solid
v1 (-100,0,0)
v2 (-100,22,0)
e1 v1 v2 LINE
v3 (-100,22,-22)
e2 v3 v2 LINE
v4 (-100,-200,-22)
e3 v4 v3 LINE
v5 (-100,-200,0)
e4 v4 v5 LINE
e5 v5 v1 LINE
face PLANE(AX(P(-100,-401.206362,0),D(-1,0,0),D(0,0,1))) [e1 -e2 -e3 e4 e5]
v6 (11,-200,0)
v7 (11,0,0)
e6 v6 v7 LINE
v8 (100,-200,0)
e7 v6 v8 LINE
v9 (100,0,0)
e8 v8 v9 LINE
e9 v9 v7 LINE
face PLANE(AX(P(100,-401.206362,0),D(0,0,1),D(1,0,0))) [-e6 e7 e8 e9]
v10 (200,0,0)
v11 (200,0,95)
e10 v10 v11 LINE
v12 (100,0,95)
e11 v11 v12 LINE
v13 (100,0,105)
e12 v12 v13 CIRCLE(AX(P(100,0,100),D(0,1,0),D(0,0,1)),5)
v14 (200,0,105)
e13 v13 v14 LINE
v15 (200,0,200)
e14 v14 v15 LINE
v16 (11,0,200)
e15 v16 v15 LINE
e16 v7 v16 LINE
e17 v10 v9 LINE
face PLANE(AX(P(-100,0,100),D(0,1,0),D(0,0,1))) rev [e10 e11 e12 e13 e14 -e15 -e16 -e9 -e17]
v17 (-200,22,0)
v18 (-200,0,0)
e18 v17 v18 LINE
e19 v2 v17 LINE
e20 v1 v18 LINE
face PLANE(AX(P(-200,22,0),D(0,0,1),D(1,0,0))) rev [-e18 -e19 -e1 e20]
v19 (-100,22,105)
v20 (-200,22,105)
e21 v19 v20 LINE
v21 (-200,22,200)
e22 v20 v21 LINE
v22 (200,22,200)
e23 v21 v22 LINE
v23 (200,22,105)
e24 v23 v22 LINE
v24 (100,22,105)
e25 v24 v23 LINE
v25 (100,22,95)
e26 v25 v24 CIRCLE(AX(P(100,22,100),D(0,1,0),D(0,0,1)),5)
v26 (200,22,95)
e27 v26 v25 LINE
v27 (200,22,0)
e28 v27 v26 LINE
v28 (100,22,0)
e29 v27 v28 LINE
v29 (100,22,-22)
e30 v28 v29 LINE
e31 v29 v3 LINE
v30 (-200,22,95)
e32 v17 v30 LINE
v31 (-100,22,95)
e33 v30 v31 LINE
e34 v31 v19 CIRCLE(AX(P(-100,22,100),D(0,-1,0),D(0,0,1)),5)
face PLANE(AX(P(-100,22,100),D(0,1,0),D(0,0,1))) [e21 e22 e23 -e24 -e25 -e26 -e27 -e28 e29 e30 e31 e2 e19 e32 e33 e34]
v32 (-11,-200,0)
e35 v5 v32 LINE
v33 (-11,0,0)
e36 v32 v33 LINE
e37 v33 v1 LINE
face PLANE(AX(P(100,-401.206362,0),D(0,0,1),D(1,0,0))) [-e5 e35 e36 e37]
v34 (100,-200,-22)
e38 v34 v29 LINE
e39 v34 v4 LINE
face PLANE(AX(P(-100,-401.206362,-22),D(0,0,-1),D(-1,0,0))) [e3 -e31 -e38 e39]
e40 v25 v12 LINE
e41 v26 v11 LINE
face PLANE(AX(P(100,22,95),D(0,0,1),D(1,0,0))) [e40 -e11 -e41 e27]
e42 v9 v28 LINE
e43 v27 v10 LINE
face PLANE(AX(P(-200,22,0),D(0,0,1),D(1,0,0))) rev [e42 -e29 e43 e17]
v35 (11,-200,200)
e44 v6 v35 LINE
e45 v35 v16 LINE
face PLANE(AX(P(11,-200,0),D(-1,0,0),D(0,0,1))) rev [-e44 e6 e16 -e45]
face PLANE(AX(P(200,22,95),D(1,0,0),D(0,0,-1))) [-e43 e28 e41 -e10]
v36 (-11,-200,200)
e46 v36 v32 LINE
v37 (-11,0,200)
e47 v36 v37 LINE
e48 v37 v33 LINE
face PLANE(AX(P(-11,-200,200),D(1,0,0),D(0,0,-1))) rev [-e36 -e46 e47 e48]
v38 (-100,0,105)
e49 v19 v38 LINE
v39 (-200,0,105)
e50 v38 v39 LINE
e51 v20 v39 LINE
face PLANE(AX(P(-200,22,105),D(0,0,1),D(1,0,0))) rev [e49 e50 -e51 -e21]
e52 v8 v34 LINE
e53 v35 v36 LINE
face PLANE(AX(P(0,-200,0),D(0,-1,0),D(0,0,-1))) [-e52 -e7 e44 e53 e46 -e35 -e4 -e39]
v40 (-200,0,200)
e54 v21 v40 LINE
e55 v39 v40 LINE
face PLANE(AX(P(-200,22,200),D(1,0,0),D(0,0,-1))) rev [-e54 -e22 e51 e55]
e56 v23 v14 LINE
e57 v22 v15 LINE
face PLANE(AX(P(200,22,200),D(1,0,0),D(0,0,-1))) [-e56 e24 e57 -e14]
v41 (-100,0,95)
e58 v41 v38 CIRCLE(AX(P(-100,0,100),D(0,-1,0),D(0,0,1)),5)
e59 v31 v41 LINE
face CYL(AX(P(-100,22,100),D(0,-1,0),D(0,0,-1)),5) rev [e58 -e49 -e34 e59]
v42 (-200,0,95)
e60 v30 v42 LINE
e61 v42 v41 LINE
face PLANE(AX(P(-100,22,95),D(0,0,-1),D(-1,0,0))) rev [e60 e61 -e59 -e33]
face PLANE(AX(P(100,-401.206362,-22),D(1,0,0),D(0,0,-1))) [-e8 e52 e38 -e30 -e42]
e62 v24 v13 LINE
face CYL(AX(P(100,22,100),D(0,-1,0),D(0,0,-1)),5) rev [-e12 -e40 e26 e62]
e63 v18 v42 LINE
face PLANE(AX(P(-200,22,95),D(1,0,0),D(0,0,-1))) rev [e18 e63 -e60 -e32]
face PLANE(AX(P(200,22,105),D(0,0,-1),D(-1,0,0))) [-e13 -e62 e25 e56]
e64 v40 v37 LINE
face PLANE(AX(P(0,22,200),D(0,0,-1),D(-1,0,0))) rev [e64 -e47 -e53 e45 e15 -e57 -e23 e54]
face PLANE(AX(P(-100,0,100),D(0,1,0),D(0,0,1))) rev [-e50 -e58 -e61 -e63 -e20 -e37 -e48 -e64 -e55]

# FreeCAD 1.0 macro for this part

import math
import FreeCAD as App
import Part
import Sketcher
from FreeCAD import Vector

doc = App.newDocument("Part")
params = doc.addObject("Spreadsheet::Sheet", "Params")
for row, (alias, value) in enumerate([
    ("sketch1_radius", "5 mm"),
    ("sketch1_width", "200 mm"),
    ("sketch1_width2", "100 mm"),
    ("pad1_length", "22 mm"),
    ("sketch2_width", "22 mm"),
    ("sketch2_height", "200 mm"),
    ("pad2_length", "200 mm"),
    ("sketch3_width", "200 mm"),
    ("sketch3_height", "22 mm"),
    ("pad3_length", "222 mm"),
], start=1):
    params.set(f"A{row}", alias)
    params.set(f"B{row}", "=" + value)
    params.setAlias(f"B{row}", alias)

body = doc.addObject("PartDesign::Body", "Body")

sketch1 = body.newObject("Sketcher::SketchObject", "Sketch")
sketch1.AttachmentSupport = (doc.getObject("XZ_Plane"), [""])
sketch1.MapMode = "FlatFace"
sketch1.addGeometry([
    Part.LineSegment(Vector(0, 200, 0), Vector(0, 0, 0)),
    Part.LineSegment(Vector(0, 0, 0), Vector(-200, 0, 0)),
    Part.LineSegment(Vector(-200, 0, 0), Vector(-200, 95, 0)),
    Part.LineSegment(Vector(-200, 95, 0), Vector(-100, 95, 0)),
    Part.ArcOfCircle(Part.Circle(Vector(-100, 100, 0), Vector(0, 0, 1), 5), math.radians(-90), math.radians(90)),
    Part.LineSegment(Vector(-100, 105, 0), Vector(-200, 105, 0)),
    Part.LineSegment(Vector(-200, 105, 0), Vector(-200, 200, 0)),
    Part.LineSegment(Vector(-200, 200, 0), Vector(0, 200, 0)),
], False)
sketch1.addConstraint([
    Sketcher.Constraint("Coincident", 0, 2, 1, 1),
    Sketcher.Constraint("Coincident", 1, 2, 2, 1),
    Sketcher.Constraint("Coincident", 2, 2, 3, 1),
    Sketcher.Constraint("Tangent", 3, 2, 4, 1),
    Sketcher.Constraint("Tangent", 4, 2, 5, 1),
    Sketcher.Constraint("Coincident", 5, 2, 6, 1),
    Sketcher.Constraint("Coincident", 6, 2, 7, 1),
    Sketcher.Constraint("Coincident", 7, 2, 0, 1),
    Sketcher.Constraint("Vertical", 0),
    Sketcher.Constraint("Horizontal", 1),
    Sketcher.Constraint("Vertical", 2),
    Sketcher.Constraint("Horizontal", 3),
    Sketcher.Constraint("Horizontal", 5),
    Sketcher.Constraint("Vertical", 6),
    Sketcher.Constraint("Horizontal", 7),
    Sketcher.Constraint("Coincident", 0, 2, -1, 1),
    Sketcher.Constraint("Vertical", 2, 2, 5, 2),
    Sketcher.Constraint("Equal", 7, 0),
    Sketcher.Constraint("Equal", 2, 6),
    Sketcher.Constraint("Radius", 4, 5.0),
    Sketcher.Constraint("DistanceX", 1, 2, 1, 1, 200.0),
    Sketcher.Constraint("DistanceX", 3, 1, 3, 2, 100.0),
])
sketch1.setExpression("Constraints[19]", "Params.sketch1_radius")
sketch1.setExpression("Constraints[20]", "Params.sketch1_width")
sketch1.setExpression("Constraints[21]", "Params.sketch1_width2")
pad1 = body.newObject("PartDesign::Pad", "Pad")
pad1.Profile = sketch1
pad1.setExpression("Length", "Params.pad1_length")
pad1.Reversed = True
doc.recompute()

mirrored = body.newObject("PartDesign::Mirrored", "Mirrored")
mirrored.Originals = [pad1]
mirrored.MirrorPlane = (doc.getObject("YZ_Plane"), [""])
body.Tip = mirrored

sketch2 = body.newObject("Sketcher::SketchObject", "Sketch001")
sketch2.AttachmentSupport = (doc.getObject("XZ_Plane"), [""])
sketch2.MapMode = "FlatFace"
sketch2.addGeometry([
    Part.LineSegment(Vector(-11, 200, 0), Vector(-11, 0, 0)),
    Part.LineSegment(Vector(-11, 0, 0), Vector(11, 0, 0)),
    Part.LineSegment(Vector(11, 0, 0), Vector(11, 200, 0)),
    Part.LineSegment(Vector(11, 200, 0), Vector(-11, 200, 0)),
], False)
sketch2.addConstraint([
    Sketcher.Constraint("Coincident", 0, 2, 1, 1),
    Sketcher.Constraint("Coincident", 1, 2, 2, 1),
    Sketcher.Constraint("Coincident", 2, 2, 3, 1),
    Sketcher.Constraint("Coincident", 3, 2, 0, 1),
    Sketcher.Constraint("Vertical", 0),
    Sketcher.Constraint("Horizontal", 1),
    Sketcher.Constraint("Vertical", 2),
    Sketcher.Constraint("Horizontal", 3),
    Sketcher.Constraint("Symmetric", 0, 2, 1, 2, -1, 1),
    Sketcher.Constraint("DistanceX", 1, 1, 1, 2, 22.0),
    Sketcher.Constraint("DistanceY", 0, 2, 0, 1, 200.0),
])
sketch2.setExpression("Constraints[9]", "Params.sketch2_width")
sketch2.setExpression("Constraints[10]", "Params.sketch2_height")
pad2 = body.newObject("PartDesign::Pad", "Pad001")
pad2.Profile = sketch2
pad2.setExpression("Length", "Params.pad2_length")

sketch3 = body.newObject("Sketcher::SketchObject", "Sketch002")
sketch3.AttachmentSupport = (doc.getObject("XZ_Plane"), [""])
sketch3.MapMode = "FlatFace"
sketch3.AttachmentOffset = App.Placement(Vector(0, 0, -22), App.Rotation())
sketch3.addGeometry([
    Part.LineSegment(Vector(-100, -22, 0), Vector(-100, 0, 0)),
    Part.LineSegment(Vector(-100, 0, 0), Vector(100, 0, 0)),
    Part.LineSegment(Vector(100, 0, 0), Vector(100, -22, 0)),
    Part.LineSegment(Vector(100, -22, 0), Vector(-100, -22, 0)),
], False)
sketch3.addConstraint([
    Sketcher.Constraint("Coincident", 0, 2, 1, 1),
    Sketcher.Constraint("Coincident", 1, 2, 2, 1),
    Sketcher.Constraint("Coincident", 2, 2, 3, 1),
    Sketcher.Constraint("Coincident", 3, 2, 0, 1),
    Sketcher.Constraint("Vertical", 0),
    Sketcher.Constraint("Horizontal", 1),
    Sketcher.Constraint("Vertical", 2),
    Sketcher.Constraint("Horizontal", 3),
    Sketcher.Constraint("Symmetric", 0, 2, 1, 2, -1, 1),
    Sketcher.Constraint("DistanceX", 1, 1, 1, 2, 200.0),
    Sketcher.Constraint("DistanceY", 0, 1, 0, 2, 22.0),
])
sketch3.setExpression("Constraints[9]", "Params.sketch3_width")
sketch3.setExpression("Constraints[10]", "Params.sketch3_height")
pad3 = body.newObject("PartDesign::Pad", "Pad002")
pad3.Profile = sketch3
pad3.setExpression("Length", "Params.pad3_length")

doc.recompute()
